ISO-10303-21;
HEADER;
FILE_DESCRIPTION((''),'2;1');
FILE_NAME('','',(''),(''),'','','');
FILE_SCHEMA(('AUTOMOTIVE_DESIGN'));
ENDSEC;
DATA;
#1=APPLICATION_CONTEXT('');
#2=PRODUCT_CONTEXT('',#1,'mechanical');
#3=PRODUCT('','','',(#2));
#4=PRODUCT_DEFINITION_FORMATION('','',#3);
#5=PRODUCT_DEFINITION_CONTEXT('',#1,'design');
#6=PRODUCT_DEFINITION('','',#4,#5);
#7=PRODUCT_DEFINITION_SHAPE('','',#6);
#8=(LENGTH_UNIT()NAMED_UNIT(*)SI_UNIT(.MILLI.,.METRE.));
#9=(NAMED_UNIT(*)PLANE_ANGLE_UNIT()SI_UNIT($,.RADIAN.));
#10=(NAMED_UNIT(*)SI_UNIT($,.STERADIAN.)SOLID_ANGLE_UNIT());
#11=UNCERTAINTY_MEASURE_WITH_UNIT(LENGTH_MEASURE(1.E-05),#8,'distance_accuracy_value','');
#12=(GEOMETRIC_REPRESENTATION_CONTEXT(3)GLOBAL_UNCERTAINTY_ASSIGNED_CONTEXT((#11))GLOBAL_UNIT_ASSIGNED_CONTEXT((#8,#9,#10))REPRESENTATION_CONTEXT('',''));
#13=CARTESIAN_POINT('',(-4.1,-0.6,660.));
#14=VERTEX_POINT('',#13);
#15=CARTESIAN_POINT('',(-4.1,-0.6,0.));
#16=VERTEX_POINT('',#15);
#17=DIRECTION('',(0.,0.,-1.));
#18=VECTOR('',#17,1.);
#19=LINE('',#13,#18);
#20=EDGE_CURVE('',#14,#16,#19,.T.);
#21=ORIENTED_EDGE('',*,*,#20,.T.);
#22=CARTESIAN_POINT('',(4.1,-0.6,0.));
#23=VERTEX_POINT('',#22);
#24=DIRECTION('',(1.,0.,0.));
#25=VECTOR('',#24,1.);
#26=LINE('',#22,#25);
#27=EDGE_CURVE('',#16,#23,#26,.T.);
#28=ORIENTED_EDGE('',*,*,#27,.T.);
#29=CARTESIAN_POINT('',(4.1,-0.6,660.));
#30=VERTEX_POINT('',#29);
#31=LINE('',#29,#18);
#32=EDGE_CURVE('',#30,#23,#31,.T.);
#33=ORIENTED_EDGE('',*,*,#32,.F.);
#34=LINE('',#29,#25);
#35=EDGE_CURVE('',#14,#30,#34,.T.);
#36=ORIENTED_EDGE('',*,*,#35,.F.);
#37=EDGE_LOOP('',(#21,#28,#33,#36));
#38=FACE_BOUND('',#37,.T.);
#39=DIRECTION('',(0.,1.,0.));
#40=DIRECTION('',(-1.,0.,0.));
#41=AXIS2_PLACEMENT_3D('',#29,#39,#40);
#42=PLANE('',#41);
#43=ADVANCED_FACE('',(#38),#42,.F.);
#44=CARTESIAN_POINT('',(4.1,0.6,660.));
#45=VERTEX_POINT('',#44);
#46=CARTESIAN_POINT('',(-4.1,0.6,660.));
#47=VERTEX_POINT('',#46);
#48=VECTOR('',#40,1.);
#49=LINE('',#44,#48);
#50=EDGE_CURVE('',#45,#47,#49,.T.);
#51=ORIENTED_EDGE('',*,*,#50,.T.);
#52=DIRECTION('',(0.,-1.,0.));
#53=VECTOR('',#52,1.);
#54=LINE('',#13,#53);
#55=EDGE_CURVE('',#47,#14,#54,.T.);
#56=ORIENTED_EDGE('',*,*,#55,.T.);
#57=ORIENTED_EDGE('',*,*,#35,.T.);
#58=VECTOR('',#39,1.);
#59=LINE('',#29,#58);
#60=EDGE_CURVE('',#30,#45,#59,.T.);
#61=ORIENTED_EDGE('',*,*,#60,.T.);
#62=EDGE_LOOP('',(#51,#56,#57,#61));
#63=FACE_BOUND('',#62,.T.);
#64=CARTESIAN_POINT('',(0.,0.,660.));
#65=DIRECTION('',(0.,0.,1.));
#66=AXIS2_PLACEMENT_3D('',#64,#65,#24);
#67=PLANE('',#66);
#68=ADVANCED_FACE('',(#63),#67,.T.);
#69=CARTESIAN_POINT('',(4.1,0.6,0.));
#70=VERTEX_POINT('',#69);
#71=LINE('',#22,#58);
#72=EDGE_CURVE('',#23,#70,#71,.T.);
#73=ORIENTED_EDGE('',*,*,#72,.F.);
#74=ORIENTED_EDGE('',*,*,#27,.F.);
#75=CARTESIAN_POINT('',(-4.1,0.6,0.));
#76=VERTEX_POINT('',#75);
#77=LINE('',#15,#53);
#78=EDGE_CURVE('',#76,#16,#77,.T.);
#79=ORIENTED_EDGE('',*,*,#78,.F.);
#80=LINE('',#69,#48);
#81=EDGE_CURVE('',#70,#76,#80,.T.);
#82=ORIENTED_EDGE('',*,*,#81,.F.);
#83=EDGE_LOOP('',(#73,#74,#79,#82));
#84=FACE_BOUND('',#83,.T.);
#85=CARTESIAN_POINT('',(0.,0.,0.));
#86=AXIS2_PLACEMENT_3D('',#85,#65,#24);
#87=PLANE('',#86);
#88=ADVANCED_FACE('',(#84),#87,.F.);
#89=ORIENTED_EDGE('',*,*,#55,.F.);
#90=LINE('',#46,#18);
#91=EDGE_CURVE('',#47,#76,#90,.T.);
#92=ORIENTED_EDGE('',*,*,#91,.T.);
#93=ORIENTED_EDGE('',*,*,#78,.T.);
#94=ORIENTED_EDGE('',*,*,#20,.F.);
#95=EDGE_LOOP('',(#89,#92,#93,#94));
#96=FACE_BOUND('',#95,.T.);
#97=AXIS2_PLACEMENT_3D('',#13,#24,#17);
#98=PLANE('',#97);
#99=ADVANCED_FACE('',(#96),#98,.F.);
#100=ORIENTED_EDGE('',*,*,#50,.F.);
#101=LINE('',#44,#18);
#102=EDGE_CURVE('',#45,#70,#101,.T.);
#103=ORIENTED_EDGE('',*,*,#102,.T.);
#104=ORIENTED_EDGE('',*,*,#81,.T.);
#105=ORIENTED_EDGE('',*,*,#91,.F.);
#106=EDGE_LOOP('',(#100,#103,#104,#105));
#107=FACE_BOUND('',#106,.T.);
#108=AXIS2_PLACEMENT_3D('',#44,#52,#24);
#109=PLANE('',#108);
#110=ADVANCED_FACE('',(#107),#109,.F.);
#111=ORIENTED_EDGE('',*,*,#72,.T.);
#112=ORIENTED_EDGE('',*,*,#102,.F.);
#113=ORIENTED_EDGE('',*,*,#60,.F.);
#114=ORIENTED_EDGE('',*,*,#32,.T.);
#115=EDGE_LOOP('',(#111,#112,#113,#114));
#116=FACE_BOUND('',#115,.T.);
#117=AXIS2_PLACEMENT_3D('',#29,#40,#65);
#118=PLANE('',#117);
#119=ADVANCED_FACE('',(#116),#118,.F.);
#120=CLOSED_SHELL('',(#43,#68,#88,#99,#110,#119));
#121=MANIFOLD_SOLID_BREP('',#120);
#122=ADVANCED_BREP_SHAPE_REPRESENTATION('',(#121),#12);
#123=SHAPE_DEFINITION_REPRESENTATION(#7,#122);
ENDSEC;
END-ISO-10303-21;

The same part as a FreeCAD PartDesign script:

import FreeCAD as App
import Part
import Sketcher

doc = App.newDocument("Part")
body = doc.addObject("PartDesign::Body", "Body")

sketch1 = doc.addObject("Sketcher::SketchObject", "Sketch")
body.addObject(sketch1)
sketch1.AttachmentSupport = (doc.XY_Plane, [""])
sketch1.MapMode = "FlatFace"
sketch1.addGeometry([
    Part.LineSegment(App.Vector(-4.1, 0.6, 0), App.Vector(-4.1, -0.6, 0)),
    Part.LineSegment(App.Vector(-4.1, -0.6, 0), App.Vector(4.1, -0.6, 0)),
    Part.LineSegment(App.Vector(4.1, -0.6, 0), App.Vector(4.1, 0.6, 0)),
    Part.LineSegment(App.Vector(4.1, 0.6, 0), App.Vector(-4.1, 0.6, 0)),
], False)
sketch1.addConstraint([
    Sketcher.Constraint("Coincident", 0, 2, 1, 1),
    Sketcher.Constraint("Coincident", 1, 2, 2, 1),
    Sketcher.Constraint("Coincident", 2, 2, 3, 1),
    Sketcher.Constraint("Coincident", 3, 2, 0, 1),
    Sketcher.Constraint("Vertical", 0),
    Sketcher.Constraint("Horizontal", 1),
    Sketcher.Constraint("Vertical", 2),
    Sketcher.Constraint("Horizontal", 3),
    Sketcher.Constraint("Symmetric", 0, 2, 2, 2, -1, 1),
    Sketcher.Constraint("DistanceX", 1, 1, 1, 2, 8.2),
    Sketcher.Constraint("DistanceY", 0, 2, 0, 1, 1.2),
])
pad1 = doc.addObject("PartDesign::Pad", "Pad")
body.addObject(pad1)
pad1.Profile = sketch1
pad1.Length = 660

doc.recompute()
